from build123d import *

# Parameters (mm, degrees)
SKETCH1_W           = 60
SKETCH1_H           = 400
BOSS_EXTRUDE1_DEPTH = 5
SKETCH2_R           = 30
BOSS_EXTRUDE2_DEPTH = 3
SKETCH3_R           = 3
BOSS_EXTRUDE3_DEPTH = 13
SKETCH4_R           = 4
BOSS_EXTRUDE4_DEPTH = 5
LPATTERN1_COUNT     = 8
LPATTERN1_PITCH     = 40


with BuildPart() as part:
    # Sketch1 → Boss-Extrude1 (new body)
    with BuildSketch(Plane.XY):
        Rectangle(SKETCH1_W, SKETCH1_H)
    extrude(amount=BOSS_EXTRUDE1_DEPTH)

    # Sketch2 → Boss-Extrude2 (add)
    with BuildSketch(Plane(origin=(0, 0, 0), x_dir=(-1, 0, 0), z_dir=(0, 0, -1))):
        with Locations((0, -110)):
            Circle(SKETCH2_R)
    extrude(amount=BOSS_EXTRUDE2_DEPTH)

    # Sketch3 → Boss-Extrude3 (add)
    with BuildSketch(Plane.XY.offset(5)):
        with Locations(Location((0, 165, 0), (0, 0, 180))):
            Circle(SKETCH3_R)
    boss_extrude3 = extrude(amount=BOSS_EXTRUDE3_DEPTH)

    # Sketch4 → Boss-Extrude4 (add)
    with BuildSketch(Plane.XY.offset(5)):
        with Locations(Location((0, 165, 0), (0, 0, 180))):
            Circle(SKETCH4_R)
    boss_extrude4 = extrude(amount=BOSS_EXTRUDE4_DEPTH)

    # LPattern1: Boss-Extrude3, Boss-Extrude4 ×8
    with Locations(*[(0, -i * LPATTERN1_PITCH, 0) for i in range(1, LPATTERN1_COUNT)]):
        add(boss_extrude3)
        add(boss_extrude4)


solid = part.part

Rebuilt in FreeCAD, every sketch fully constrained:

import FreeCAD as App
import Part
import Sketcher


def add_polygon(sketch, points):
    """Adds a closed chain of lines whose ends are joined by coincident constraints."""
    first, n = sketch.GeometryCount, len(points)
    for a, b in zip(points, points[1:] + points[:1]):
        sketch.addGeometry(Part.LineSegment(App.Vector(*a, 0), App.Vector(*b, 0)), False)
    for i in range(n):
        sketch.addConstraint(Sketcher.Constraint("Coincident", first + i, 2, first + (i + 1) % n, 1))

doc = App.newDocument("Part")
params = doc.addObject("Spreadsheet::Sheet", "Params")
for row, (alias, value) in enumerate([
    ("sketch1_width", "60 mm"),
    ("sketch1_height", "400 mm"),
    ("pad1_length", "5 mm"),
    ("sketch2_diameter", "60 mm"),
    ("pad2_length", "3 mm"),
    ("sketch3_diameter", "6 mm"),
    ("pad3_length", "13 mm"),
    ("sketch4_diameter", "8 mm"),
    ("pad4_length", "5 mm"),
    ("linearpattern_pitch", "40 mm"),
], start=1):
    params.set(f"A{row}", alias)
    params.set(f"B{row}", "=" + value)
    params.setAlias(f"B{row}", alias)

body = doc.addObject("PartDesign::Body", "Body")

# Sketch on XY plane
sketch1 = body.newObject("Sketcher::SketchObject", "Sketch")
sketch1.AttachmentSupport = (doc.getObject("XY_Plane"), [""])
sketch1.MapMode = "FlatFace"
add_polygon(sketch1, [(-30, 200), (-30, -200), (30, -200), (30, 200)])  # lines 0-3
sketch1.addConstraint(Sketcher.Constraint("Vertical", 0))
sketch1.addConstraint(Sketcher.Constraint("Horizontal", 1))
sketch1.addConstraint(Sketcher.Constraint("Vertical", 2))
sketch1.addConstraint(Sketcher.Constraint("Horizontal", 3))
sketch1.addConstraint(Sketcher.Constraint("Symmetric", 0, 2, 2, 2, -1, 1))
sketch1.addConstraint(Sketcher.Constraint("DistanceX", 1, 1, 1, 2, 60.0))
sketch1.addConstraint(Sketcher.Constraint("DistanceY", 0, 2, 0, 1, 400.0))
sketch1.setExpression("Constraints[9]", "Params.sketch1_width")
sketch1.setExpression("Constraints[10]", "Params.sketch1_height")
pad1 = body.newObject("PartDesign::Pad", "Pad")
pad1.Profile = sketch1
pad1.setExpression("Length", "Params.pad1_length")

# Sketch on XY plane
sketch2 = body.newObject("Sketcher::SketchObject", "Sketch001")
sketch2.AttachmentSupport = (doc.getObject("XY_Plane"), [""])
sketch2.MapMode = "FlatFace"
sketch2.addGeometry(Part.Circle(App.Vector(0, -110, 0), App.Vector(0, 0, 1), 30), False)
sketch2.addConstraint(Sketcher.Constraint("PointOnObject", 0, 3, -2))
sketch2.addConstraint(Sketcher.Constraint("Diameter", 0, 60.0))
sketch2.addConstraint(Sketcher.Constraint("DistanceY", 0, 3, -1, 1, 110.0))
sketch2.setExpression("Constraints[1]", "Params.sketch2_diameter")
pad2 = body.newObject("PartDesign::Pad", "Pad001")
pad2.Profile = sketch2
pad2.setExpression("Length", "Params.pad2_length")
pad2.Reversed = True

# Sketch on XY plane
sketch3 = body.newObject("Sketcher::SketchObject", "Sketch002")
sketch3.AttachmentSupport = (doc.getObject("XY_Plane"), [""])
sketch3.MapMode = "FlatFace"
sketch3.AttachmentOffset = App.Placement(App.Vector(0, 0, 5), App.Rotation())
sketch3.addGeometry(Part.Circle(App.Vector(0, 165, 0), App.Vector(0, 0, 1), 3), False)
sketch3.addConstraint(Sketcher.Constraint("PointOnObject", 0, 3, -2))
sketch3.addConstraint(Sketcher.Constraint("Diameter", 0, 6.0))
sketch3.addConstraint(Sketcher.Constraint("DistanceY", -1, 1, 0, 3, 165.0))
sketch3.setExpression("Constraints[1]", "Params.sketch3_diameter")
pad3 = body.newObject("PartDesign::Pad", "Pad002")
pad3.Profile = sketch3
pad3.setExpression("Length", "Params.pad3_length")

# Sketch on XY plane
sketch4 = body.newObject("Sketcher::SketchObject", "Sketch003")
sketch4.AttachmentSupport = (doc.getObject("XY_Plane"), [""])
sketch4.MapMode = "FlatFace"
sketch4.AttachmentOffset = App.Placement(App.Vector(0, 0, 5), App.Rotation())
sketch4.addGeometry(Part.Circle(App.Vector(0, 165, 0), App.Vector(0, 0, 1), 4), False)
sketch4.addConstraint(Sketcher.Constraint("PointOnObject", 0, 3, -2))
sketch4.addConstraint(Sketcher.Constraint("Diameter", 0, 8.0))
sketch4.addConstraint(Sketcher.Constraint("DistanceY", -1, 1, 0, 3, 165.0))
sketch4.setExpression("Constraints[1]", "Params.sketch4_diameter")
pad4 = body.newObject("PartDesign::Pad", "Pad003")
pad4.Profile = sketch4
pad4.setExpression("Length", "Params.pad4_length")
doc.recompute()

linearpattern = body.newObject("PartDesign::LinearPattern", "LinearPattern")
linearpattern.Originals = [pad3, pad4]
linearpattern.Direction = (doc.getObject("Y_Axis"), [""])
linearpattern.Mode = "offset"
linearpattern.setExpression("Offset", "Params.linearpattern_pitch")
linearpattern.Occurrences = 8
linearpattern.Reversed = True
body.Tip = linearpattern

doc.recompute()
